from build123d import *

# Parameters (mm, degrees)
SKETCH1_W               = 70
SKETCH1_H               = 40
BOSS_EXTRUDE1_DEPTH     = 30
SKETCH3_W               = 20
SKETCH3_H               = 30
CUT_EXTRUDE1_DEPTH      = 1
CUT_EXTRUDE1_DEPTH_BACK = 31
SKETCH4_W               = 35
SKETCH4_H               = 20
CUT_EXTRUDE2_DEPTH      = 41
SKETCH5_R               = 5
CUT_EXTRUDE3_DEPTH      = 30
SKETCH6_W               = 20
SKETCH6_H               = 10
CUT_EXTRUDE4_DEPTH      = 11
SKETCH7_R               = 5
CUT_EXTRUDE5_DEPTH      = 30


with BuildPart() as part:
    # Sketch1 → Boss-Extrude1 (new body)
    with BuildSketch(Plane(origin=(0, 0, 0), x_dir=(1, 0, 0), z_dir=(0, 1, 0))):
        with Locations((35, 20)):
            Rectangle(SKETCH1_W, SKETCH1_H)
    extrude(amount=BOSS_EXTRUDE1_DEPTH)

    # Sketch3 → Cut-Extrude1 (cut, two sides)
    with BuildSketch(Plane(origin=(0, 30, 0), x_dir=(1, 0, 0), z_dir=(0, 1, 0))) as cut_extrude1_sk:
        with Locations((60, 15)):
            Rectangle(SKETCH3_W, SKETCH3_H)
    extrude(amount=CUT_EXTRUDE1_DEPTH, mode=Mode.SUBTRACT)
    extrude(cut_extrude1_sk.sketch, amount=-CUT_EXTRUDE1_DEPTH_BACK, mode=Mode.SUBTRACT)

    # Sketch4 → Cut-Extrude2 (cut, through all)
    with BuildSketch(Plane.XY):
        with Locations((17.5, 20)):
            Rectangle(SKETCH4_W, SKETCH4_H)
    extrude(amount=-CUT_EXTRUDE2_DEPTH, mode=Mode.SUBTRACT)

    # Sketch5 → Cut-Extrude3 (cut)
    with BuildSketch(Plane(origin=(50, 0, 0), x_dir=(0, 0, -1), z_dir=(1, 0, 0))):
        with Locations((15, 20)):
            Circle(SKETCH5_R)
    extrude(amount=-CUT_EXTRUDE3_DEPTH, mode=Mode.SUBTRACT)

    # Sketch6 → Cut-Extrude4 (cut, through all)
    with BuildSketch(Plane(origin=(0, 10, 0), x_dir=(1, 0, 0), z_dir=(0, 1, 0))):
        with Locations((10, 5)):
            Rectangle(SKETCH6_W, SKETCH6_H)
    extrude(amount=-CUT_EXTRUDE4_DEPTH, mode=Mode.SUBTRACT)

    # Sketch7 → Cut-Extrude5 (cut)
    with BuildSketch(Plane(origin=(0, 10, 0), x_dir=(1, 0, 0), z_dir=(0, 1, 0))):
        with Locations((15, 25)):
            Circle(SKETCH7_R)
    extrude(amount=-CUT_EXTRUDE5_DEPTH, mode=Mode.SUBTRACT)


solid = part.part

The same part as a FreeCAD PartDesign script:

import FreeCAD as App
import Part
import Sketcher

V = App.Vector
Q = App.Units.Quantity

doc = App.newDocument("Part")
body = doc.addObject("PartDesign::Body", "Body")

sketch1 = doc.addObject("Sketcher::SketchObject", "Sketch")
body.addObject(sketch1)
sketch1.AttachmentSupport = (doc.XZ_Plane, [""])
sketch1.MapMode = "FlatFace"
sketch1.addGeometry([
    Part.LineSegment(V(0, -40, 0), V(0, 0, 0)),
    Part.LineSegment(V(0, 0, 0), V(70, 0, 0)),
    Part.LineSegment(V(70, 0, 0), V(70, -40, 0)),
    Part.LineSegment(V(70, -40, 0), V(0, -40, 0)),
], False)
sketch1.addConstraint([
    Sketcher.Constraint("Coincident", 0, 2, 1, 1),
    Sketcher.Constraint("Coincident", 1, 2, 2, 1),
    Sketcher.Constraint("Coincident", 2, 2, 3, 1),
    Sketcher.Constraint("Coincident", 3, 2, 0, 1),
    Sketcher.Constraint("Vertical", 0),
    Sketcher.Constraint("Horizontal", 1),
    Sketcher.Constraint("Vertical", 2),
    Sketcher.Constraint("Horizontal", 3),
    Sketcher.Constraint("Coincident", 0, 2, -1, 1),
    Sketcher.Constraint("DistanceX", 1, 1, 1, 2, Q("70 mm")),
    Sketcher.Constraint("DistanceY", 0, 1, 0, 2, Q("40 mm")),
])
pad1 = doc.addObject("PartDesign::Pad", "Pad")
body.addObject(pad1)
pad1.Profile = sketch1
pad1.Length = 30
pad1.Reversed = True

sketch2 = doc.addObject("Sketcher::SketchObject", "Sketch001")
body.addObject(sketch2)
sketch2.AttachmentSupport = (doc.XZ_Plane, [""])
sketch2.MapMode = "FlatFace"
sketch2.AttachmentOffset = App.Placement(V(0, 0, -30), App.Rotation())
sketch2.addGeometry([
    Part.LineSegment(V(50, -30, 0), V(50, 0, 0)),
    Part.LineSegment(V(50, 0, 0), V(70, 0, 0)),
    Part.LineSegment(V(70, 0, 0), V(70, -30, 0)),
    Part.LineSegment(V(70, -30, 0), V(50, -30, 0)),
], False)
sketch2.addConstraint([
    Sketcher.Constraint("Coincident", 0, 2, 1, 1),
    Sketcher.Constraint("Coincident", 1, 2, 2, 1),
    Sketcher.Constraint("Coincident", 2, 2, 3, 1),
    Sketcher.Constraint("Coincident", 3, 2, 0, 1),
    Sketcher.Constraint("Vertical", 0),
    Sketcher.Constraint("Horizontal", 1),
    Sketcher.Constraint("Vertical", 2),
    Sketcher.Constraint("Horizontal", 3),
    Sketcher.Constraint("PointOnObject", 0, 2, -1),
    Sketcher.Constraint("DistanceX", 1, 1, 1, 2, Q("20 mm")),
    Sketcher.Constraint("DistanceY", 0, 1, 0, 2, Q("30 mm")),
    Sketcher.Constraint("DistanceX", -1, 1, 0, 2, Q("50 mm")),
])
pocket1 = doc.addObject("PartDesign::Pocket", "Pocket")
body.addObject(pocket1)
pocket1.Profile = sketch2
pocket1.Type = "ThroughAll"
pocket1.Midplane = True

sketch3 = doc.addObject("Sketcher::SketchObject", "Sketch002")
body.addObject(sketch3)
sketch3.AttachmentSupport = (doc.XY_Plane, [""])
sketch3.MapMode = "FlatFace"
sketch3.addGeometry([
    Part.LineSegment(V(0, 30, 0), V(0, 10, 0)),
    Part.LineSegment(V(0, 10, 0), V(35, 10, 0)),
    Part.LineSegment(V(35, 10, 0), V(35, 30, 0)),
    Part.LineSegment(V(35, 30, 0), V(0, 30, 0)),
], False)
sketch3.addConstraint([
    Sketcher.Constraint("Coincident", 0, 2, 1, 1),
    Sketcher.Constraint("Coincident", 1, 2, 2, 1),
    Sketcher.Constraint("Coincident", 2, 2, 3, 1),
    Sketcher.Constraint("Coincident", 3, 2, 0, 1),
    Sketcher.Constraint("Vertical", 0),
    Sketcher.Constraint("Horizontal", 1),
    Sketcher.Constraint("Vertical", 2),
    Sketcher.Constraint("Horizontal", 3),
    Sketcher.Constraint("PointOnObject", 0, 2, -2),
    Sketcher.Constraint("DistanceX", 1, 1, 1, 2, Q("35 mm")),
    Sketcher.Constraint("DistanceY", 0, 2, 0, 1, Q("20 mm")),
    Sketcher.Constraint("DistanceY", -1, 1, 0, 2, Q("10 mm")),
])
pocket2 = doc.addObject("PartDesign::Pocket", "Pocket001")
body.addObject(pocket2)
pocket2.Profile = sketch3
pocket2.Type = "ThroughAll"

sketch4 = doc.addObject("Sketcher::SketchObject", "Sketch003")
body.addObject(sketch4)
sketch4.AttachmentSupport = (doc.YZ_Plane, [""])
sketch4.MapMode = "FlatFace"
sketch4.AttachmentOffset = App.Placement(V(0, 0, 50), App.Rotation())
sketch4.addGeometry(Part.Circle(V(20, -15, 0), V(0, 0, 1), 5), False)
sketch4.addConstraint([
    Sketcher.Constraint("Diameter", 0, Q("10 mm")),
    Sketcher.Constraint("DistanceX", -1, 1, 0, 3, Q("20 mm")),
    Sketcher.Constraint("DistanceY", 0, 3, -1, 1, Q("15 mm")),
])
pocket3 = doc.addObject("PartDesign::Pocket", "Pocket002")
body.addObject(pocket3)
pocket3.Profile = sketch4
pocket3.Length = 30

sketch5 = doc.addObject("Sketcher::SketchObject", "Sketch004")
body.addObject(sketch5)
sketch5.AttachmentSupport = (doc.XZ_Plane, [""])
sketch5.MapMode = "FlatFace"
sketch5.AttachmentOffset = App.Placement(V(0, 0, -10), App.Rotation())
sketch5.addGeometry([
    Part.LineSegment(V(0, -10, 0), V(0, 0, 0)),
    Part.LineSegment(V(0, 0, 0), V(20, 0, 0)),
    Part.LineSegment(V(20, 0, 0), V(20, -10, 0)),
    Part.LineSegment(V(20, -10, 0), V(0, -10, 0)),
], False)
sketch5.addConstraint([
    Sketcher.Constraint("Coincident", 0, 2, 1, 1),
    Sketcher.Constraint("Coincident", 1, 2, 2, 1),
    Sketcher.Constraint("Coincident", 2, 2, 3, 1),
    Sketcher.Constraint("Coincident", 3, 2, 0, 1),
    Sketcher.Constraint("Vertical", 0),
    Sketcher.Constraint("Horizontal", 1),
    Sketcher.Constraint("Vertical", 2),
    Sketcher.Constraint("Horizontal", 3),
    Sketcher.Constraint("Coincident", 0, 2, -1, 1),
    Sketcher.Constraint("DistanceX", 1, 1, 1, 2, Q("20 mm")),
    Sketcher.Constraint("DistanceY", 0, 1, 0, 2, Q("10 mm")),
])
pocket4 = doc.addObject("PartDesign::Pocket", "Pocket003")
body.addObject(pocket4)
pocket4.Profile = sketch5
pocket4.Type = "ThroughAll"
pocket4.Reversed = True

sketch6 = doc.addObject("Sketcher::SketchObject", "Sketch005")
body.addObject(sketch6)
sketch6.AttachmentSupport = (doc.XZ_Plane, [""])
sketch6.MapMode = "FlatFace"
sketch6.AttachmentOffset = App.Placement(V(0, 0, -10), App.Rotation())
sketch6.addGeometry(Part.Circle(V(15, -25, 0), V(0, 0, 1), 5), False)
sketch6.addConstraint([
    Sketcher.Constraint("Diameter", 0, Q("10 mm")),
    Sketcher.Constraint("DistanceX", -1, 1, 0, 3, Q("15 mm")),
    Sketcher.Constraint("DistanceY", 0, 3, -1, 1, Q("25 mm")),
])
pocket5 = doc.addObject("PartDesign::Pocket", "Pocket004")
body.addObject(pocket5)
pocket5.Profile = sketch6
pocket5.Length = 30
pocket5.Reversed = True

doc.recompute()
